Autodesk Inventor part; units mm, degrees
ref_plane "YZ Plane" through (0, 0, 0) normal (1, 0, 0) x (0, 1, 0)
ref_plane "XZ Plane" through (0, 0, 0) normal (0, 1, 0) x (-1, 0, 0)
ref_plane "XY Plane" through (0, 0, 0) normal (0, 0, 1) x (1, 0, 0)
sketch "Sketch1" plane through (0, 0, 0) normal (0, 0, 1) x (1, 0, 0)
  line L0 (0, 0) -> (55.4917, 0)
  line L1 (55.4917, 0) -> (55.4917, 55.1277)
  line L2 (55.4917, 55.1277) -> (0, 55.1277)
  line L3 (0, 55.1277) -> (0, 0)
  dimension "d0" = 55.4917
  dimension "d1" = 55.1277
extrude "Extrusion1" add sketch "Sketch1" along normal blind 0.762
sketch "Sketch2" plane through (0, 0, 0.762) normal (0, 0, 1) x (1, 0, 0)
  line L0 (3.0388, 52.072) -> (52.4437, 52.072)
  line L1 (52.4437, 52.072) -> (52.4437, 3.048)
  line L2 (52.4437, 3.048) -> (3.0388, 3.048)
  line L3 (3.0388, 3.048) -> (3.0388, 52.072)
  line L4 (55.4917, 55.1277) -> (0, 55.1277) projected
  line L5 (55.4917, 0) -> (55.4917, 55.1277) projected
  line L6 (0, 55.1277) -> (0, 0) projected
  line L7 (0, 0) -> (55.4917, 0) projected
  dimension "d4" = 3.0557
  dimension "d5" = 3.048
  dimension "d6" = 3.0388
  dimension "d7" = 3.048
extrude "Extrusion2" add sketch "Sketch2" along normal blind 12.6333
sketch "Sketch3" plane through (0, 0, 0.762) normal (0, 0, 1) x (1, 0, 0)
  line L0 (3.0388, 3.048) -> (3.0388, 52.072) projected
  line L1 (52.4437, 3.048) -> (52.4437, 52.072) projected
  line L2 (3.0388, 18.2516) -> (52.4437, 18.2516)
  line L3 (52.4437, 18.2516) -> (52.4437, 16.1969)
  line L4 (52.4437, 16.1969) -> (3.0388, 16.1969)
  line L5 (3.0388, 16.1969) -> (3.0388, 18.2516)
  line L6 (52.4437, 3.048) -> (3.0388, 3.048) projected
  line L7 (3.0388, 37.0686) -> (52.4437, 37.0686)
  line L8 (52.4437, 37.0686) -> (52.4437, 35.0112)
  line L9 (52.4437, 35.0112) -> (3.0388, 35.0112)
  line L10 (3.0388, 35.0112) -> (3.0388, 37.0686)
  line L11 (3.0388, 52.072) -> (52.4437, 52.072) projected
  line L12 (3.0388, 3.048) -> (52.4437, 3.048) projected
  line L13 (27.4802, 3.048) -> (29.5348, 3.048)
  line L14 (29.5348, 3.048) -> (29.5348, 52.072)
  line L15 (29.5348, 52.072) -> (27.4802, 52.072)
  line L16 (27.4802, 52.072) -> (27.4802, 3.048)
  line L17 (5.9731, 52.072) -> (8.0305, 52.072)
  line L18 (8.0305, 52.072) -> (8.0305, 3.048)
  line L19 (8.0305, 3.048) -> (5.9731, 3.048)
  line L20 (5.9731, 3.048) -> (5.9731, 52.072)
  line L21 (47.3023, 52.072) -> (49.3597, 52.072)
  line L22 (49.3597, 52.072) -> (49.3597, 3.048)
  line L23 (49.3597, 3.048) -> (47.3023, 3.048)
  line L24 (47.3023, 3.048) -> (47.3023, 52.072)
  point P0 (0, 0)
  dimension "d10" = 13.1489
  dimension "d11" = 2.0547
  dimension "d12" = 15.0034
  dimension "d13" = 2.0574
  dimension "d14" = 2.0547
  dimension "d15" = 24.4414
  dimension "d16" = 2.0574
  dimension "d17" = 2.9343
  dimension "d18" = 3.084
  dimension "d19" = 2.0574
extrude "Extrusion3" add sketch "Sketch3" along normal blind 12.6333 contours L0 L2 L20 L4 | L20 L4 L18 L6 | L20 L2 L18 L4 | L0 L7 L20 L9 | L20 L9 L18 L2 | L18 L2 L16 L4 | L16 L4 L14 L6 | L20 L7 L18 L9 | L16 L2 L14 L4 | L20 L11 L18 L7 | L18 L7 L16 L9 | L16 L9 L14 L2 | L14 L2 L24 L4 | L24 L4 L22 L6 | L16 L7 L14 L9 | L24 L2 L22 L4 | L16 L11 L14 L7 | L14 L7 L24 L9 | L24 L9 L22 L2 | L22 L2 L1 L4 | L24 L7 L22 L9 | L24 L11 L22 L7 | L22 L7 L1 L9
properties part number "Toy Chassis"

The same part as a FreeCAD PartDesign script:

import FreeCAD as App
import Part
import Sketcher
from FreeCAD import Vector
Q = App.Units.Quantity

doc = App.newDocument("Part")
body = doc.addObject("PartDesign::Body", "Body")

# Sketch on XY plane
sketch1 = body.newObject("Sketcher::SketchObject", "Sketch")
sketch1.AttachmentSupport = (doc.getObject("XY_Plane"), [""])
sketch1.MapMode = "FlatFace"
sketch1.addGeometry(Part.LineSegment(Vector(0, 55, 0), Vector(0, 0, 0)), False)
sketch1.addGeometry(Part.LineSegment(Vector(0, 0, 0), Vector(55, 0, 0)), False)
sketch1.addGeometry(Part.LineSegment(Vector(55, 0, 0), Vector(55, 55, 0)), False)
sketch1.addGeometry(Part.LineSegment(Vector(55, 55, 0), Vector(0, 55, 0)), False)
sketch1.addConstraint(Sketcher.Constraint("Coincident", 0, 2, 1, 1))
sketch1.addConstraint(Sketcher.Constraint("Coincident", 1, 2, 2, 1))
sketch1.addConstraint(Sketcher.Constraint("Coincident", 2, 2, 3, 1))
sketch1.addConstraint(Sketcher.Constraint("Coincident", 3, 2, 0, 1))
sketch1.addConstraint(Sketcher.Constraint("Vertical", 0))
sketch1.addConstraint(Sketcher.Constraint("Horizontal", 1))
sketch1.addConstraint(Sketcher.Constraint("Vertical", 2))
sketch1.addConstraint(Sketcher.Constraint("Horizontal", 3))
sketch1.addConstraint(Sketcher.Constraint("Coincident", 0, 2, -1, 1))
sketch1.addConstraint(Sketcher.Constraint("DistanceX", 1, 1, 1, 2, Q("55.4917 mm")))
sketch1.addConstraint(Sketcher.Constraint("DistanceY", 0, 2, 0, 1, Q("55.1277 mm")))
pad1 = body.newObject("PartDesign::Pad", "Pad")
pad1.Profile = sketch1
pad1.Length = Q("0.03 in")

# Sketch on XY plane
sketch2 = body.newObject("Sketcher::SketchObject", "Sketch001")
sketch2.AttachmentSupport = (doc.getObject("XY_Plane"), [""])
sketch2.MapMode = "FlatFace"
sketch2.AttachmentOffset = App.Placement(Vector(0, 0, 0.03 * 25.4), App.Rotation())
sketch2.addGeometry(Part.LineSegment(Vector(55, 0, 0), Vector(55, 55, 0)), False)
sketch2.addGeometry(Part.LineSegment(Vector(55, 55, 0), Vector(0, 55, 0)), False)
sketch2.addGeometry(Part.LineSegment(Vector(0, 55, 0), Vector(0, 0, 0)), False)
sketch2.addGeometry(Part.LineSegment(Vector(0, 0, 0), Vector(55, 0, 0)), False)
sketch2.addGeometry(Part.LineSegment(Vector(3, 3, 0), Vector(3, 52, 0)), False)
sketch2.addGeometry(Part.LineSegment(Vector(3, 52, 0), Vector(52, 52, 0)), False)
sketch2.addGeometry(Part.LineSegment(Vector(52, 52, 0), Vector(52, 3, 0)), False)
sketch2.addGeometry(Part.LineSegment(Vector(52, 3, 0), Vector(3, 3, 0)), False)
sketch2.addConstraint(Sketcher.Constraint("Coincident", 0, 2, 1, 1))
sketch2.addConstraint(Sketcher.Constraint("Coincident", 1, 2, 2, 1))
sketch2.addConstraint(Sketcher.Constraint("Coincident", 2, 2, 3, 1))
sketch2.addConstraint(Sketcher.Constraint("Coincident", 3, 2, 0, 1))
sketch2.addConstraint(Sketcher.Constraint("Coincident", 4, 2, 5, 1))
sketch2.addConstraint(Sketcher.Constraint("Coincident", 5, 2, 6, 1))
sketch2.addConstraint(Sketcher.Constraint("Coincident", 6, 2, 7, 1))
sketch2.addConstraint(Sketcher.Constraint("Coincident", 7, 2, 4, 1))
sketch2.addConstraint(Sketcher.Constraint("Vertical", 0))
sketch2.addConstraint(Sketcher.Constraint("Horizontal", 1))
sketch2.addConstraint(Sketcher.Constraint("Vertical", 2))
sketch2.addConstraint(Sketcher.Constraint("Horizontal", 3))
sketch2.addConstraint(Sketcher.Constraint("Vertical", 4))
sketch2.addConstraint(Sketcher.Constraint("Horizontal", 5))
sketch2.addConstraint(Sketcher.Constraint("Vertical", 6))
sketch2.addConstraint(Sketcher.Constraint("Horizontal", 7))
sketch2.addConstraint(Sketcher.Constraint("Coincident", 2, 2, -1, 1))
sketch2.addConstraint(Sketcher.Constraint("DistanceY", -1, 1, 6, 2, Q("0.12 in")))
sketch2.addConstraint(Sketcher.Constraint("DistanceX", 5, 2, 0, 2, Q("0.12 in")))
sketch2.addConstraint(Sketcher.Constraint("DistanceY", 4, 2, 1, 2, Q("0.1203 in")))
sketch2.addConstraint(Sketcher.Constraint("DistanceX", -1, 1, 4, 2, Q("3.0388 mm")))
sketch2.addConstraint(Sketcher.Constraint("DistanceX", 1, 2, 1, 1, Q("55.4917 mm")))
sketch2.addConstraint(Sketcher.Constraint("DistanceY", 0, 1, 0, 2, Q("55.1277 mm")))
pad2 = body.newObject("PartDesign::Pad", "Pad001")
pad2.Profile = sketch2
pad2.Length = 12.6333

# Sketch on XY plane
sketch3 = body.newObject("Sketcher::SketchObject", "Sketch002")
sketch3.AttachmentSupport = (doc.getObject("XY_Plane"), [""])
sketch3.MapMode = "FlatFace"
sketch3.AttachmentOffset = App.Placement(Vector(0, 0, 0.03 * 25.4), App.Rotation())
sketch3.addGeometry(Part.LineSegment(Vector(3, 18.3, 0), Vector(3, 16.2, 0)), False)
sketch3.addGeometry(Part.LineSegment(Vector(3, 16.2, 0), Vector(6, 16.2, 0)), False)
sketch3.addGeometry(Part.LineSegment(Vector(6, 16.2, 0), Vector(6, 3, 0)), False)
sketch3.addGeometry(Part.LineSegment(Vector(6, 3, 0), Vector(8, 3, 0)), False)
sketch3.addGeometry(Part.LineSegment(Vector(8, 3, 0), Vector(8, 16.2, 0)), False)
sketch3.addGeometry(Part.LineSegment(Vector(8, 16.2, 0), Vector(27.5, 16.2, 0)), False)
sketch3.addGeometry(Part.LineSegment(Vector(27.5, 16.2, 0), Vector(27.5, 3, 0)), False)
sketch3.addGeometry(Part.LineSegment(Vector(27.5, 3, 0), Vector(29.5, 3, 0)), False)
sketch3.addGeometry(Part.LineSegment(Vector(29.5, 3, 0), Vector(29.5, 16.2, 0)), False)
sketch3.addGeometry(Part.LineSegment(Vector(29.5, 16.2, 0), Vector(47.3, 16.2, 0)), False)
sketch3.addGeometry(Part.LineSegment(Vector(47.3, 16.2, 0), Vector(47.3, 3, 0)), False)
sketch3.addGeometry(Part.LineSegment(Vector(47.3, 3, 0), Vector(49.4, 3, 0)), False)
sketch3.addGeometry(Part.LineSegment(Vector(49.4, 3, 0), Vector(49.4, 16.2, 0)), False)
sketch3.addGeometry(Part.LineSegment(Vector(49.4, 16.2, 0), Vector(52.4, 16.2, 0)), False)
sketch3.addGeometry(Part.LineSegment(Vector(52.4, 16.2, 0), Vector(52.4, 18.3, 0)), False)
sketch3.addGeometry(Part.LineSegment(Vector(52.4, 18.3, 0), Vector(49.4, 18.3, 0)), False)
sketch3.addGeometry(Part.LineSegment(Vector(49.4, 18.3, 0), Vector(49.4, 35, 0)), False)
sketch3.addGeometry(Part.LineSegment(Vector(49.4, 35, 0), Vector(52.4, 35, 0)), False)
sketch3.addGeometry(Part.LineSegment(Vector(52.4, 35, 0), Vector(52.4, 37.1, 0)), False)
sketch3.addGeometry(Part.LineSegment(Vector(52.4, 37.1, 0), Vector(49.4, 37.1, 0)), False)
sketch3.addGeometry(Part.LineSegment(Vector(49.4, 37.1, 0), Vector(49.4, 52.1, 0)), False)
sketch3.addGeometry(Part.LineSegment(Vector(49.4, 52.1, 0), Vector(47.3, 52.1, 0)), False)
sketch3.addGeometry(Part.LineSegment(Vector(47.3, 52.1, 0), Vector(47.3, 37.1, 0)), False)
sketch3.addGeometry(Part.LineSegment(Vector(47.3, 37.1, 0), Vector(29.5, 37.1, 0)), False)
sketch3.addGeometry(Part.LineSegment(Vector(29.5, 37.1, 0), Vector(29.5, 52.1, 0)), False)
sketch3.addGeometry(Part.LineSegment(Vector(29.5, 52.1, 0), Vector(27.5, 52.1, 0)), False)
sketch3.addGeometry(Part.LineSegment(Vector(27.5, 52.1, 0), Vector(27.5, 37.1, 0)), False)
sketch3.addGeometry(Part.LineSegment(Vector(27.5, 37.1, 0), Vector(8, 37.1, 0)), False)
sketch3.addGeometry(Part.LineSegment(Vector(8, 37.1, 0), Vector(8, 52.1, 0)), False)
sketch3.addGeometry(Part.LineSegment(Vector(8, 52.1, 0), Vector(6, 52.1, 0)), False)
sketch3.addGeometry(Part.LineSegment(Vector(6, 52.1, 0), Vector(6, 37.1, 0)), False)
sketch3.addGeometry(Part.LineSegment(Vector(6, 37.1, 0), Vector(3, 37.1, 0)), False)
sketch3.addGeometry(Part.LineSegment(Vector(3, 37.1, 0), Vector(3, 35, 0)), False)
sketch3.addGeometry(Part.LineSegment(Vector(3, 35, 0), Vector(6, 35, 0)), False)
sketch3.addGeometry(Part.LineSegment(Vector(6, 35, 0), Vector(6, 18.3, 0)), False)
sketch3.addGeometry(Part.LineSegment(Vector(6, 18.3, 0), Vector(3, 18.3, 0)), False)
sketch3.addGeometry(Part.LineSegment(Vector(8, 18.3, 0), Vector(8, 35, 0)), False)
sketch3.addGeometry(Part.LineSegment(Vector(8, 35, 0), Vector(27.5, 35, 0)), False)
sketch3.addGeometry(Part.LineSegment(Vector(27.5, 35, 0), Vector(27.5, 18.3, 0)), False)
sketch3.addGeometry(Part.LineSegment(Vector(27.5, 18.3, 0), Vector(8, 18.3, 0)), False)
sketch3.addGeometry(Part.LineSegment(Vector(29.5, 18.3, 0), Vector(29.5, 35, 0)), False)
sketch3.addGeometry(Part.LineSegment(Vector(29.5, 35, 0), Vector(47.3, 35, 0)), False)
sketch3.addGeometry(Part.LineSegment(Vector(47.3, 35, 0), Vector(47.3, 18.3, 0)), False)
sketch3.addGeometry(Part.LineSegment(Vector(47.3, 18.3, 0), Vector(29.5, 18.3, 0)), False)
sketch3.addConstraint(Sketcher.Constraint("Coincident", 0, 2, 1, 1))
sketch3.addConstraint(Sketcher.Constraint("Coincident", 1, 2, 2, 1))
sketch3.addConstraint(Sketcher.Constraint("Coincident", 2, 2, 3, 1))
sketch3.addConstraint(Sketcher.Constraint("Coincident", 3, 2, 4, 1))
sketch3.addConstraint(Sketcher.Constraint("Coincident", 4, 2, 5, 1))
sketch3.addConstraint(Sketcher.Constraint("Coincident", 5, 2, 6, 1))
sketch3.addConstraint(Sketcher.Constraint("Coincident", 6, 2, 7, 1))
sketch3.addConstraint(Sketcher.Constraint("Coincident", 7, 2, 8, 1))
sketch3.addConstraint(Sketcher.Constraint("Coincident", 8, 2, 9, 1))
sketch3.addConstraint(Sketcher.Constraint("Coincident", 9, 2, 10, 1))
sketch3.addConstraint(Sketcher.Constraint("Coincident", 10, 2, 11, 1))
sketch3.addConstraint(Sketcher.Constraint("Coincident", 11, 2, 12, 1))
sketch3.addConstraint(Sketcher.Constraint("Coincident", 12, 2, 13, 1))
sketch3.addConstraint(Sketcher.Constraint("Coincident", 13, 2, 14, 1))
sketch3.addConstraint(Sketcher.Constraint("Coincident", 14, 2, 15, 1))
sketch3.addConstraint(Sketcher.Constraint("Coincident", 15, 2, 16, 1))
sketch3.addConstraint(Sketcher.Constraint("Coincident", 16, 2, 17, 1))
sketch3.addConstraint(Sketcher.Constraint("Coincident", 17, 2, 18, 1))
sketch3.addConstraint(Sketcher.Constraint("Coincident", 18, 2, 19, 1))
sketch3.addConstraint(Sketcher.Constraint("Coincident", 19, 2, 20, 1))
sketch3.addConstraint(Sketcher.Constraint("Coincident", 20, 2, 21, 1))
sketch3.addConstraint(Sketcher.Constraint("Coincident", 21, 2, 22, 1))
sketch3.addConstraint(Sketcher.Constraint("Coincident", 22, 2, 23, 1))
sketch3.addConstraint(Sketcher.Constraint("Coincident", 23, 2, 24, 1))
sketch3.addConstraint(Sketcher.Constraint("Coincident", 24, 2, 25, 1))
sketch3.addConstraint(Sketcher.Constraint("Coincident", 25, 2, 26, 1))
sketch3.addConstraint(Sketcher.Constraint("Coincident", 26, 2, 27, 1))
sketch3.addConstraint(Sketcher.Constraint("Coincident", 27, 2, 28, 1))
sketch3.addConstraint(Sketcher.Constraint("Coincident", 28, 2, 29, 1))
sketch3.addConstraint(Sketcher.Constraint("Coincident", 29, 2, 30, 1))
sketch3.addConstraint(Sketcher.Constraint("Coincident", 30, 2, 31, 1))
sketch3.addConstraint(Sketcher.Constraint("Coincident", 31, 2, 32, 1))
sketch3.addConstraint(Sketcher.Constraint("Coincident", 32, 2, 33, 1))
sketch3.addConstraint(Sketcher.Constraint("Coincident", 33, 2, 34, 1))
sketch3.addConstraint(Sketcher.Constraint("Coincident", 34, 2, 35, 1))
sketch3.addConstraint(Sketcher.Constraint("Coincident", 35, 2, 0, 1))
sketch3.addConstraint(Sketcher.Constraint("Coincident", 36, 2, 37, 1))
sketch3.addConstraint(Sketcher.Constraint("Coincident", 37, 2, 38, 1))
sketch3.addConstraint(Sketcher.Constraint("Coincident", 38, 2, 39, 1))
sketch3.addConstraint(Sketcher.Constraint("Coincident", 39, 2, 36, 1))
sketch3.addConstraint(Sketcher.Constraint("Coincident", 40, 2, 41, 1))
sketch3.addConstraint(Sketcher.Constraint("Coincident", 41, 2, 42, 1))
sketch3.addConstraint(Sketcher.Constraint("Coincident", 42, 2, 43, 1))
sketch3.addConstraint(Sketcher.Constraint("Coincident", 43, 2, 40, 1))
sketch3.addConstraint(Sketcher.Constraint("Vertical", 0))
sketch3.addConstraint(Sketcher.Constraint("Horizontal", 1))
sketch3.addConstraint(Sketcher.Constraint("Vertical", 2))
sketch3.addConstraint(Sketcher.Constraint("Horizontal", 3))
sketch3.addConstraint(Sketcher.Constraint("Vertical", 4))
sketch3.addConstraint(Sketcher.Constraint("Horizontal", 5))
sketch3.addConstraint(Sketcher.Constraint("Vertical", 6))
sketch3.addConstraint(Sketcher.Constraint("Horizontal", 7))
sketch3.addConstraint(Sketcher.Constraint("Vertical", 8))
sketch3.addConstraint(Sketcher.Constraint("Horizontal", 9))
sketch3.addConstraint(Sketcher.Constraint("Vertical", 10))
sketch3.addConstraint(Sketcher.Constraint("Horizontal", 11))
sketch3.addConstraint(Sketcher.Constraint("Vertical", 12))
sketch3.addConstraint(Sketcher.Constraint("Horizontal", 13))
sketch3.addConstraint(Sketcher.Constraint("Vertical", 14))
sketch3.addConstraint(Sketcher.Constraint("Horizontal", 15))
sketch3.addConstraint(Sketcher.Constraint("Vertical", 16))
sketch3.addConstraint(Sketcher.Constraint("Horizontal", 17))
sketch3.addConstraint(Sketcher.Constraint("Vertical", 18))
sketch3.addConstraint(Sketcher.Constraint("Horizontal", 19))
sketch3.addConstraint(Sketcher.Constraint("Vertical", 20))
sketch3.addConstraint(Sketcher.Constraint("Horizontal", 21))
sketch3.addConstraint(Sketcher.Constraint("Vertical", 22))
sketch3.addConstraint(Sketcher.Constraint("Horizontal", 23))
sketch3.addConstraint(Sketcher.Constraint("Vertical", 24))
sketch3.addConstraint(Sketcher.Constraint("Horizontal", 25))
sketch3.addConstraint(Sketcher.Constraint("Vertical", 26))
sketch3.addConstraint(Sketcher.Constraint("Horizontal", 27))
sketch3.addConstraint(Sketcher.Constraint("Vertical", 28))
sketch3.addConstraint(Sketcher.Constraint("Horizontal", 29))
sketch3.addConstraint(Sketcher.Constraint("Vertical", 30))
sketch3.addConstraint(Sketcher.Constraint("Horizontal", 31))
sketch3.addConstraint(Sketcher.Constraint("Vertical", 32))
sketch3.addConstraint(Sketcher.Constraint("Horizontal", 33))
sketch3.addConstraint(Sketcher.Constraint("Vertical", 34))
sketch3.addConstraint(Sketcher.Constraint("Horizontal", 35))
sketch3.addConstraint(Sketcher.Constraint("Vertical", 36))
sketch3.addConstraint(Sketcher.Constraint("Horizontal", 37))
sketch3.addConstraint(Sketcher.Constraint("Vertical", 38))
sketch3.addConstraint(Sketcher.Constraint("Horizontal", 39))
sketch3.addConstraint(Sketcher.Constraint("Vertical", 40))
sketch3.addConstraint(Sketcher.Constraint("Horizontal", 41))
sketch3.addConstraint(Sketcher.Constraint("Vertical", 42))
sketch3.addConstraint(Sketcher.Constraint("Horizontal", 43))
sketch3.addConstraint(Sketcher.Constraint("Horizontal", 1, 2, 4, 2))
sketch3.addConstraint(Sketcher.Constraint("Horizontal", 3, 2, 6, 2))
sketch3.addConstraint(Sketcher.Constraint("Horizontal", 5, 2, 8, 2))
sketch3.addConstraint(Sketcher.Constraint("Horizontal", 7, 2, 10, 2))
sketch3.addConstraint(Sketcher.Constraint("Horizontal", 9, 2, 12, 2))
sketch3.addConstraint(Sketcher.Constraint("Horizontal", 19, 2, 22, 2))
sketch3.addConstraint(Sketcher.Constraint("Horizontal", 21, 2, 24, 2))
sketch3.addConstraint(Sketcher.Constraint("Horizontal", 23, 2, 26, 2))
sketch3.addConstraint(Sketcher.Constraint("Horizontal", 25, 2, 28, 2))
sketch3.addConstraint(Sketcher.Constraint("Horizontal", 27, 2, 30, 2))
sketch3.addConstraint(Sketcher.Constraint("Horizontal", 17, 2, 32, 2))
sketch3.addConstraint(Sketcher.Constraint("Horizontal", 15, 2, 34, 2))
sketch3.addConstraint(Sketcher.Constraint("Horizontal", 33, 2, 36, 2))
sketch3.addConstraint(Sketcher.Constraint("Horizontal", 35, 2, 38, 2))
sketch3.addConstraint(Sketcher.Constraint("Horizontal", 37, 2, 40, 2))
sketch3.addConstraint(Sketcher.Constraint("Horizontal", 39, 2, 42, 2))
sketch3.addConstraint(Sketcher.Constraint("Vertical", 12, 2, 15, 2))
sketch3.addConstraint(Sketcher.Constraint("Vertical", 14, 2, 17, 2))
sketch3.addConstraint(Sketcher.Constraint("Vertical", 16, 2, 19, 2))
sketch3.addConstraint(Sketcher.Constraint("Vertical", 10, 2, 21, 2))
sketch3.addConstraint(Sketcher.Constraint("Vertical", 8, 2, 23, 2))
sketch3.addConstraint(Sketcher.Constraint("Vertical", 6, 2, 25, 2))
sketch3.addConstraint(Sketcher.Constraint("Vertical", 4, 2, 27, 2))
sketch3.addConstraint(Sketcher.Constraint("Vertical", 2, 2, 29, 2))
sketch3.addConstraint(Sketcher.Constraint("Vertical", 0, 2, 31, 2))
sketch3.addConstraint(Sketcher.Constraint("Vertical", 30, 2, 33, 2))
sketch3.addConstraint(Sketcher.Constraint("Vertical", 28, 2, 36, 2))
sketch3.addConstraint(Sketcher.Constraint("Vertical", 26, 2, 37, 2))
sketch3.addConstraint(Sketcher.Constraint("Vertical", 24, 2, 40, 2))
sketch3.addConstraint(Sketcher.Constraint("Vertical", 22, 2, 41, 2))
sketch3.addConstraint(Sketcher.Constraint("Equal", 3, 11))
sketch3.addConstraint(Sketcher.Constraint("Equal", 25, 0))
sketch3.addConstraint(Sketcher.Constraint("Equal", 29, 18))
sketch3.addConstraint(Sketcher.Constraint("DistanceX", 3, 1, 3, 2, Q("0.081 in")))
sketch3.addConstraint(Sketcher.Constraint("DistanceX", 7, 1, 7, 2, Q("0.0809 in")))
sketch3.addConstraint(Sketcher.Constraint("DistanceX", 1, 1, 1, 2, Q("2.9343 mm")))
sketch3.addConstraint(Sketcher.Constraint("DistanceX", 13, 1, 13, 2, Q("3.084 mm")))
sketch3.addConstraint(Sketcher.Constraint("DistanceY", 2, 2, 2, 1, Q("13.149 mm")))
sketch3.addConstraint(Sketcher.Constraint("DistanceY", 20, 1, 20, 2, Q("15.0034 mm")))
sketch3.addConstraint(Sketcher.Constraint("DistanceY", -1, 1, 2, 2, Q("0.12 in")))
sketch3.addConstraint(Sketcher.Constraint("DistanceX", 0, 2, 5, 2, Q("24.4414 mm")))
sketch3.addConstraint(Sketcher.Constraint("DistanceX", 9, 1, 9, 2, Q("0.6995 in")))
sketch3.addConstraint(Sketcher.Constraint("DistanceY", 16, 1, 16, 2, Q("16.7596 mm")))
sketch3.addConstraint(Sketcher.Constraint("DistanceX", -1, 1, 5, 2, Q("1.0819 in")))
pad3 = body.newObject("PartDesign::Pad", "Pad002")
pad3.Profile = sketch3
pad3.Length = 12.6333

doc.recompute()
